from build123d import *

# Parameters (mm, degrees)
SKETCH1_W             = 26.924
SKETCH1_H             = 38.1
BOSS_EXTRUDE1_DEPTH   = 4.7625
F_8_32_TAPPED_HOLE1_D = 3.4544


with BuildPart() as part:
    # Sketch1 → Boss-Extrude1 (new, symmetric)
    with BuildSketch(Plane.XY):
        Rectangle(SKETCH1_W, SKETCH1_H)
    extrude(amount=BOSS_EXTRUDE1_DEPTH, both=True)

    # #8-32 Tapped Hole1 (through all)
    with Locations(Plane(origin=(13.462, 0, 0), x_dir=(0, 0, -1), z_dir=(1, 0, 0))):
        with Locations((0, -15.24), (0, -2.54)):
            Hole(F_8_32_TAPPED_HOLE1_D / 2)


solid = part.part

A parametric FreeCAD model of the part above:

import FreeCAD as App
import Part
import Sketcher

V = App.Vector
Q = App.Units.Quantity

doc = App.newDocument("Part")
body = doc.addObject("PartDesign::Body", "Body")

sketch1 = body.newObject("Sketcher::SketchObject", "Sketch")
sketch1.AttachmentSupport = (doc.getObject("XY_Plane"), [""])
sketch1.MapMode = "FlatFace"
sketch1.addGeometry([
    Part.LineSegment(V(-13.462, 19.05, 0), V(-13.462, -19.05, 0)),
    Part.LineSegment(V(-13.462, -19.05, 0), V(13.462, -19.05, 0)),
    Part.LineSegment(V(13.462, -19.05, 0), V(13.462, 19.05, 0)),
    Part.LineSegment(V(13.462, 19.05, 0), V(-13.462, 19.05, 0)),
], False)
sketch1.addConstraint([
    Sketcher.Constraint("Coincident", 0, 2, 1, 1),
    Sketcher.Constraint("Coincident", 1, 2, 2, 1),
    Sketcher.Constraint("Coincident", 2, 2, 3, 1),
    Sketcher.Constraint("Coincident", 3, 2, 0, 1),
    Sketcher.Constraint("Vertical", 0),
    Sketcher.Constraint("Horizontal", 1),
    Sketcher.Constraint("Vertical", 2),
    Sketcher.Constraint("Horizontal", 3),
    Sketcher.Constraint("Symmetric", 0, 2, 2, 2, -1, 1),
    Sketcher.Constraint("DistanceY", 0, 2, 0, 1, Q("1.5 in")),
    Sketcher.Constraint("DistanceX", 1, 1, 1, 2, Q("1.06 in")),
])
pad1 = body.newObject("PartDesign::Pad", "Pad")
pad1.Profile = sketch1
pad1.Length = Q("0.375 in")
pad1.Midplane = True

sketch2 = body.newObject("Sketcher::SketchObject", "Sketch001")
sketch2.AttachmentSupport = (doc.getObject("YZ_Plane"), [""])
sketch2.MapMode = "FlatFace"
sketch2.AttachmentOffset = App.Placement(V(0, 0, 0.53 * 25.4), App.Rotation())
sketch2.addGeometry([
    Part.Circle(V(-15.24, 0, 0), V(0, 0, 1), 1.7272),
    Part.Circle(V(-2.54, 0, 0), V(0, 0, 1), 1.7272),
], False)
sketch2.addConstraint([
    Sketcher.Constraint("Equal", 0, 1),
    Sketcher.Constraint("PointOnObject", 0, 3, -1),
    Sketcher.Constraint("PointOnObject", 1, 3, -1),
    Sketcher.Constraint("Diameter", 0, Q("0.136 in")),
    Sketcher.Constraint("DistanceX", 0, 3, -1, 1, Q("0.6 in")),
    Sketcher.Constraint("DistanceX", 1, 3, -1, 1, Q("0.1 in")),
])
doc.recompute()
hole = body.newObject("PartDesign::Hole", "Hole")
hole.Profile = sketch2
hole.ThreadType = "None"
hole.Diameter = Q("0.136 in")
hole.DepthType = "ThroughAll"

doc.recompute()
